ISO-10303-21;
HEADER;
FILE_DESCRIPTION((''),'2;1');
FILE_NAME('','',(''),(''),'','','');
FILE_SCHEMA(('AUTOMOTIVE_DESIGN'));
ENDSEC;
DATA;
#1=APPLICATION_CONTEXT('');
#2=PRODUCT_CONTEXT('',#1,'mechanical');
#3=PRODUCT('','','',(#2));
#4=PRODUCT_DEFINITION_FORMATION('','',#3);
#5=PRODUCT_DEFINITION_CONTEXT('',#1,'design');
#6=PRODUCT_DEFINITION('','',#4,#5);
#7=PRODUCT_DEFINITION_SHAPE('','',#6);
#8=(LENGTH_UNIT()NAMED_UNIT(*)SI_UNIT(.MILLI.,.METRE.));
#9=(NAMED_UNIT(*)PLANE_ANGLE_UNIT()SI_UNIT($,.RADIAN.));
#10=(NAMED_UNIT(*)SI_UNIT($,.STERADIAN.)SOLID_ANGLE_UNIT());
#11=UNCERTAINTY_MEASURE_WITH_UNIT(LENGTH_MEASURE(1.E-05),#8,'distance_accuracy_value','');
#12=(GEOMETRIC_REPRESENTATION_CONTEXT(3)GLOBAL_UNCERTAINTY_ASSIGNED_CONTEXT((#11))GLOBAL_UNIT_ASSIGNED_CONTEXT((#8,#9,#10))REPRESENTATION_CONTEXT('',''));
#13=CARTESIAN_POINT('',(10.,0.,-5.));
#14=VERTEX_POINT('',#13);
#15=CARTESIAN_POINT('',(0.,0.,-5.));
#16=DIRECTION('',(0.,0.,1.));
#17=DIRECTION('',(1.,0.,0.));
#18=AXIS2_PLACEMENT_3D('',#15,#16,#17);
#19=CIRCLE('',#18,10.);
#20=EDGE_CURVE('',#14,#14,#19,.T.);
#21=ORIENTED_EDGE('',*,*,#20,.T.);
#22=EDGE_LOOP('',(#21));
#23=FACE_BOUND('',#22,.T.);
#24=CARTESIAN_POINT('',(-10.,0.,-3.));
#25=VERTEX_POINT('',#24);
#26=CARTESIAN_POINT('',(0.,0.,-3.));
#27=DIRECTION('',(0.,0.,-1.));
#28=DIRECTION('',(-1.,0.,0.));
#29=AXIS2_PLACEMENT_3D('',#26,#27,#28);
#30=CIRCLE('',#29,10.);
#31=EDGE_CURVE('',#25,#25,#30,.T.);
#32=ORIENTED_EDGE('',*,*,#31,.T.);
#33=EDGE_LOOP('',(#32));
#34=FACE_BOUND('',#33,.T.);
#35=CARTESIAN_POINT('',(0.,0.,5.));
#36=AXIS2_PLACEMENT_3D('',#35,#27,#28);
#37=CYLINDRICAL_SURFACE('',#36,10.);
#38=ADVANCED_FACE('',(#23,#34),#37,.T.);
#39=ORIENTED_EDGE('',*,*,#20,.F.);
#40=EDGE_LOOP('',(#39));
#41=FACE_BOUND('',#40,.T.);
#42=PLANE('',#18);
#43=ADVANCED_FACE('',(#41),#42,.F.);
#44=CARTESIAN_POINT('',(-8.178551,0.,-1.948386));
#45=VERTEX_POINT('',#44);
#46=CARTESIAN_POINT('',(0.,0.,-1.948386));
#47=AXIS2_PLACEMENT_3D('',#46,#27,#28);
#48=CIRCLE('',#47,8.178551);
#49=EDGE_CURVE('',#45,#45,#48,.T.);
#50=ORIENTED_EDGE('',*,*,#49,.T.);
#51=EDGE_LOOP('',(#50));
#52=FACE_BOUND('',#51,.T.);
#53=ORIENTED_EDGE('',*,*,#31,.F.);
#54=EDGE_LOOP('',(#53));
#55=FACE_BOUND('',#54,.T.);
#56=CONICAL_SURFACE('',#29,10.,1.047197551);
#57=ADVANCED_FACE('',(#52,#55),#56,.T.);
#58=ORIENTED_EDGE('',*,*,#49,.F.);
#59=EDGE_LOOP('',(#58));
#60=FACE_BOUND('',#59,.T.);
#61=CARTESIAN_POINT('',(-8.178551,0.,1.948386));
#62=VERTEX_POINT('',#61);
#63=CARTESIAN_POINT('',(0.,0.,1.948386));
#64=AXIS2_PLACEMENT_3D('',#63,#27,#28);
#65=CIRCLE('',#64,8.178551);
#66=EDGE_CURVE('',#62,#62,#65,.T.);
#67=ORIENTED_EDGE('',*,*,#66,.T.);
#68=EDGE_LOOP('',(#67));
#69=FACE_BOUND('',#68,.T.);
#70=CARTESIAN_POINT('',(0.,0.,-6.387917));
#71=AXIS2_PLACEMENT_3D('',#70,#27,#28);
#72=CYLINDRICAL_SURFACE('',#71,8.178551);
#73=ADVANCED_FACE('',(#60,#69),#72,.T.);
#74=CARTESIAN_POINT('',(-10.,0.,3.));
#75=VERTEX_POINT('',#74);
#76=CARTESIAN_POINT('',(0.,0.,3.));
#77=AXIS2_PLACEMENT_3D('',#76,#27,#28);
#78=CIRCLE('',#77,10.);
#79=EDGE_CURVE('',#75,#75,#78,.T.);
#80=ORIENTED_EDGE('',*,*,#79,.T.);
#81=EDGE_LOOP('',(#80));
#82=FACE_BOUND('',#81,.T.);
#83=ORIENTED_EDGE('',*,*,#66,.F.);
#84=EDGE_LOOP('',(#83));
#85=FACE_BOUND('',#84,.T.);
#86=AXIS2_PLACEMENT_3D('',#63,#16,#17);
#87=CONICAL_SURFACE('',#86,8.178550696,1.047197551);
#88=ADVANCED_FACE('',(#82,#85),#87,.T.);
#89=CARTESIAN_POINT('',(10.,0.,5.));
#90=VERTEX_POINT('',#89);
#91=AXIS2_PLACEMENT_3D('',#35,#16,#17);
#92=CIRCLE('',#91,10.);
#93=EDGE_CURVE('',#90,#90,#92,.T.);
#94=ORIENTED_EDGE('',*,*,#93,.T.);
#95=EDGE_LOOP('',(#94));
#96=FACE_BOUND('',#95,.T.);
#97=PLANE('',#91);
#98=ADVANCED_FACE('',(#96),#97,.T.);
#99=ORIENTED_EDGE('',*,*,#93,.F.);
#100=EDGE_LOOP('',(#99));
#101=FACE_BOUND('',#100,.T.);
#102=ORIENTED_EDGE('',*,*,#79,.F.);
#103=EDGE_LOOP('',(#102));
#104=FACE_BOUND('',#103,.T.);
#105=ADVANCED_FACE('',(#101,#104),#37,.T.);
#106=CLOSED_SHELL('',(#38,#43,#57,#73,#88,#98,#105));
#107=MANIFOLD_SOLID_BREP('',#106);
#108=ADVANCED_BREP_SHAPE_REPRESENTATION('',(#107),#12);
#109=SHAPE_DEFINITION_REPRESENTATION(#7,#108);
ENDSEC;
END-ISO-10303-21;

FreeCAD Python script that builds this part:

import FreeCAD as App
import Part
import Sketcher

V = App.Vector
Q = App.Units.Quantity

doc = App.newDocument("Part")
params = doc.addObject("Spreadsheet::Sheet", "Params")
for row, (alias, value) in enumerate([
    ("sketch1_diameter", "20 mm"),
    ("pad1_length", "10 mm"),
    ("sketch2_height", "6 mm"),
    ("groove_angle", "360 deg"),
], start=1):
    params.set(f"A{row}", alias)
    params.set(f"B{row}", "=" + value)
    params.setAlias(f"B{row}", alias)

body = doc.addObject("PartDesign::Body", "Body")

# Sketch on XY plane
sketch1 = doc.addObject("Sketcher::SketchObject", "Sketch")
body.addObject(sketch1)
sketch1.AttachmentSupport = (doc.XY_Plane, [""])
sketch1.MapMode = "FlatFace"
sketch1.addGeometry(Part.Circle(V(0, 0, 0), V(0, 0, 1), 10), False)
sketch1.addConstraint(Sketcher.Constraint("Coincident", 0, 3, -1, 1))
sketch1.addConstraint(Sketcher.Constraint("Diameter", 0, Q("20 mm")))
sketch1.setExpression("Constraints[1]", "Params.sketch1_diameter")
pad1 = doc.addObject("PartDesign::Pad", "Pad")
body.addObject(pad1)
pad1.Profile = sketch1
pad1.setExpression("Length", "Params.pad1_length")
pad1.Midplane = True

# Sketch on XZ plane
sketch2 = doc.addObject("Sketcher::SketchObject", "Sketch001")
body.addObject(sketch2)
sketch2.AttachmentSupport = (doc.XZ_Plane, [""])
sketch2.MapMode = "FlatFace"
sketch2.addGeometry(Part.LineSegment(V(10, -3, 0), V(8.2, -1.9, 0)), False)
sketch2.addGeometry(Part.LineSegment(V(8.2, -1.9, 0), V(8.2, 1.9, 0)), False)
sketch2.addGeometry(Part.LineSegment(V(8.2, 1.9, 0), V(10, 3, 0)), False)
sketch2.addGeometry(Part.LineSegment(V(10, 3, 0), V(10, -3, 0)), False)
sketch2.addConstraint(Sketcher.Constraint("Coincident", 0, 2, 1, 1))
sketch2.addConstraint(Sketcher.Constraint("Coincident", 1, 2, 2, 1))
sketch2.addConstraint(Sketcher.Constraint("Coincident", 2, 2, 3, 1))
sketch2.addConstraint(Sketcher.Constraint("Coincident", 3, 2, 0, 1))
sketch2.addConstraint(Sketcher.Constraint("Vertical", 1))
sketch2.addConstraint(Sketcher.Constraint("Vertical", 3))
sketch2.addConstraint(Sketcher.Constraint("Equal", 0, 2))
sketch2.addConstraint(Sketcher.Constraint("DistanceY", 3, 2, 3, 1, Q("6 mm")))
sketch2.addConstraint(Sketcher.Constraint("Angle", 0, Q("150 deg")))
sketch2.addConstraint(Sketcher.Constraint("DistanceX", -1, 1, 2, 2, Q("10 mm")))
sketch2.addConstraint(Sketcher.Constraint("DistanceY", -1, 1, 2, 2, Q("3 mm")))
sketch2.addConstraint(Sketcher.Constraint("DistanceY", 1, 1, 1, 2, Q("3.896772 mm")))
sketch2.setExpression("Constraints[7]", "Params.sketch2_height")
groove = doc.addObject("PartDesign::Groove", "Groove")
body.addObject(groove)
groove.Profile = sketch2
groove.ReferenceAxis = (sketch2, ["V_Axis"])
groove.setExpression("Angle", "Params.groove_angle")

doc.recompute()
